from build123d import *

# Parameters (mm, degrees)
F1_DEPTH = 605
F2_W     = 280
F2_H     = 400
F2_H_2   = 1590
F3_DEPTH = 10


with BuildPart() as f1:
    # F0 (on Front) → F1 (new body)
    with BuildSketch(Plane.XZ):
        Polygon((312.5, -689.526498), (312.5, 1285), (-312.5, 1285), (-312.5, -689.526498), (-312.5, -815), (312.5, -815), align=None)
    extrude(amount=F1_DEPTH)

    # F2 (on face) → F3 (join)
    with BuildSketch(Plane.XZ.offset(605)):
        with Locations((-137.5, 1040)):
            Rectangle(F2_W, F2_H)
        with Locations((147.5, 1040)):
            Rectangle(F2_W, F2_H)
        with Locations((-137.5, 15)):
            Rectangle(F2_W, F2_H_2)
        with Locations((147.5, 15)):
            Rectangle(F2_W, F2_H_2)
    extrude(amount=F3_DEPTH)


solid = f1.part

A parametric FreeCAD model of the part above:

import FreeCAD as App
import Part
import Sketcher

V = App.Vector

doc = App.newDocument("Part")
params = doc.addObject("Spreadsheet::Sheet", "Params")
for row, (alias, value) in enumerate([
    ("sketch1_width", "625 mm"),
    ("sketch1_height", "2100 mm"),
    ("pad1_length", "605 mm"),
    ("sketch2_width", "280 mm"),
    ("sketch2_height", "400 mm"),
    ("sketch2_height2", "1590 mm"),
    ("pad2_length", "10 mm"),
], start=1):
    params.set(f"A{row}", alias)
    params.set(f"B{row}", "=" + value)
    params.setAlias(f"B{row}", alias)

body = doc.addObject("PartDesign::Body", "Body")

# Sketch on XZ plane
sketch1 = body.newObject("Sketcher::SketchObject", "Sketch")
sketch1.AttachmentSupport = (doc.getObject("XZ_Plane"), [""])
sketch1.MapMode = "FlatFace"
sketch1.addGeometry(Part.LineSegment(V(312, 1285, 0), V(-312, 1285, 0)), False)
sketch1.addGeometry(Part.LineSegment(V(-312, 1285, 0), V(-312, -815, 0)), False)
sketch1.addGeometry(Part.LineSegment(V(-312, -815, 0), V(312, -815, 0)), False)
sketch1.addGeometry(Part.LineSegment(V(312, -815, 0), V(312, 1285, 0)), False)
sketch1.addConstraint(Sketcher.Constraint("Coincident", 0, 2, 1, 1))
sketch1.addConstraint(Sketcher.Constraint("Coincident", 1, 2, 2, 1))
sketch1.addConstraint(Sketcher.Constraint("Coincident", 2, 2, 3, 1))
sketch1.addConstraint(Sketcher.Constraint("Coincident", 3, 2, 0, 1))
sketch1.addConstraint(Sketcher.Constraint("Horizontal", 0))
sketch1.addConstraint(Sketcher.Constraint("Vertical", 1))
sketch1.addConstraint(Sketcher.Constraint("Horizontal", 2))
sketch1.addConstraint(Sketcher.Constraint("Vertical", 3))
sketch1.addConstraint(Sketcher.Constraint("DistanceX", 0, 2, 0, 1, 625.0))
sketch1.addConstraint(Sketcher.Constraint("DistanceY", 1, 2, 1, 1, 2100.0))
sketch1.addConstraint(Sketcher.Constraint("DistanceY", -1, 1, 0, 2, 1285.0))
sketch1.addConstraint(Sketcher.Constraint("DistanceX", 0, 2, -1, 1, 312.5))
sketch1.setExpression("Constraints[8]", "Params.sketch1_width")
sketch1.setExpression("Constraints[9]", "Params.sketch1_height")
pad1 = body.newObject("PartDesign::Pad", "Pad")
pad1.Profile = sketch1
pad1.setExpression("Length", "Params.pad1_length")

# Sketch on XZ plane
sketch2 = body.newObject("Sketcher::SketchObject", "Sketch001")
sketch2.AttachmentSupport = (doc.getObject("XZ_Plane"), [""])
sketch2.MapMode = "FlatFace"
sketch2.AttachmentOffset = App.Placement(V(0, 0, 605), App.Rotation())
sketch2.addGeometry(Part.LineSegment(V(-278, 1240, 0), V(-278, 840, 0)), False)
sketch2.addGeometry(Part.LineSegment(V(-278, 840, 0), V(2, 840, 0)), False)
sketch2.addGeometry(Part.LineSegment(V(2, 840, 0), V(2, 1240, 0)), False)
sketch2.addGeometry(Part.LineSegment(V(2, 1240, 0), V(-278, 1240, 0)), False)
sketch2.addGeometry(Part.LineSegment(V(8, 1240, 0), V(8, 840, 0)), False)
sketch2.addGeometry(Part.LineSegment(V(8, 840, 0), V(288, 840, 0)), False)
sketch2.addGeometry(Part.LineSegment(V(288, 840, 0), V(288, 1240, 0)), False)
sketch2.addGeometry(Part.LineSegment(V(288, 1240, 0), V(8, 1240, 0)), False)
sketch2.addGeometry(Part.LineSegment(V(-278, 810, 0), V(-278, -780, 0)), False)
sketch2.addGeometry(Part.LineSegment(V(-278, -780, 0), V(2, -780, 0)), False)
sketch2.addGeometry(Part.LineSegment(V(2, -780, 0), V(2, 810, 0)), False)
sketch2.addGeometry(Part.LineSegment(V(2, 810, 0), V(-278, 810, 0)), False)
sketch2.addGeometry(Part.LineSegment(V(8, 810, 0), V(8, -780, 0)), False)
sketch2.addGeometry(Part.LineSegment(V(8, -780, 0), V(288, -780, 0)), False)
sketch2.addGeometry(Part.LineSegment(V(288, -780, 0), V(288, 810, 0)), False)
sketch2.addGeometry(Part.LineSegment(V(288, 810, 0), V(8, 810, 0)), False)
sketch2.addConstraint(Sketcher.Constraint("Coincident", 0, 2, 1, 1))
sketch2.addConstraint(Sketcher.Constraint("Coincident", 1, 2, 2, 1))
sketch2.addConstraint(Sketcher.Constraint("Coincident", 2, 2, 3, 1))
sketch2.addConstraint(Sketcher.Constraint("Coincident", 3, 2, 0, 1))
sketch2.addConstraint(Sketcher.Constraint("Coincident", 4, 2, 5, 1))
sketch2.addConstraint(Sketcher.Constraint("Coincident", 5, 2, 6, 1))
sketch2.addConstraint(Sketcher.Constraint("Coincident", 6, 2, 7, 1))
sketch2.addConstraint(Sketcher.Constraint("Coincident", 7, 2, 4, 1))
sketch2.addConstraint(Sketcher.Constraint("Coincident", 8, 2, 9, 1))
sketch2.addConstraint(Sketcher.Constraint("Coincident", 9, 2, 10, 1))
sketch2.addConstraint(Sketcher.Constraint("Coincident", 10, 2, 11, 1))
sketch2.addConstraint(Sketcher.Constraint("Coincident", 11, 2, 8, 1))
sketch2.addConstraint(Sketcher.Constraint("Coincident", 12, 2, 13, 1))
sketch2.addConstraint(Sketcher.Constraint("Coincident", 13, 2, 14, 1))
sketch2.addConstraint(Sketcher.Constraint("Coincident", 14, 2, 15, 1))
sketch2.addConstraint(Sketcher.Constraint("Coincident", 15, 2, 12, 1))
sketch2.addConstraint(Sketcher.Constraint("Vertical", 0))
sketch2.addConstraint(Sketcher.Constraint("Horizontal", 1))
sketch2.addConstraint(Sketcher.Constraint("Vertical", 2))
sketch2.addConstraint(Sketcher.Constraint("Horizontal", 3))
sketch2.addConstraint(Sketcher.Constraint("Vertical", 4))
sketch2.addConstraint(Sketcher.Constraint("Horizontal", 5))
sketch2.addConstraint(Sketcher.Constraint("Vertical", 6))
sketch2.addConstraint(Sketcher.Constraint("Horizontal", 7))
sketch2.addConstraint(Sketcher.Constraint("Vertical", 8))
sketch2.addConstraint(Sketcher.Constraint("Horizontal", 9))
sketch2.addConstraint(Sketcher.Constraint("Vertical", 10))
sketch2.addConstraint(Sketcher.Constraint("Horizontal", 11))
sketch2.addConstraint(Sketcher.Constraint("Vertical", 12))
sketch2.addConstraint(Sketcher.Constraint("Horizontal", 13))
sketch2.addConstraint(Sketcher.Constraint("Vertical", 14))
sketch2.addConstraint(Sketcher.Constraint("Horizontal", 15))
sketch2.addConstraint(Sketcher.Constraint("Horizontal", 1, 2, 4, 2))
sketch2.addConstraint(Sketcher.Constraint("Horizontal", 3, 2, 6, 2))
sketch2.addConstraint(Sketcher.Constraint("Horizontal", 9, 2, 12, 2))
sketch2.addConstraint(Sketcher.Constraint("Horizontal", 11, 2, 14, 2))
sketch2.addConstraint(Sketcher.Constraint("Vertical", 3, 2, 8, 2))
sketch2.addConstraint(Sketcher.Constraint("Vertical", 2, 2, 9, 2))
sketch2.addConstraint(Sketcher.Constraint("Vertical", 7, 2, 12, 2))
sketch2.addConstraint(Sketcher.Constraint("Vertical", 6, 2, 13, 2))
sketch2.addConstraint(Sketcher.Constraint("Equal", 3, 5))
sketch2.addConstraint(Sketcher.Constraint("DistanceX", 1, 1, 1, 2, 280.0))
sketch2.addConstraint(Sketcher.Constraint("DistanceY", 0, 2, 0, 1, 400.0))
sketch2.addConstraint(Sketcher.Constraint("DistanceY", 8, 2, 8, 1, 1590.0))
sketch2.addConstraint(Sketcher.Constraint("DistanceY", -1, 1, 0, 2, 840.0))
sketch2.addConstraint(Sketcher.Constraint("DistanceY", 8, 2, -1, 1, 780.0))
sketch2.addConstraint(Sketcher.Constraint("DistanceX", 1, 2, 4, 2, 5.0))
sketch2.addConstraint(Sketcher.Constraint("DistanceX", 0, 2, -1, 1, 277.5))
sketch2.setExpression("Constraints[41]", "Params.sketch2_width")
sketch2.setExpression("Constraints[42]", "Params.sketch2_height")
sketch2.setExpression("Constraints[43]", "Params.sketch2_height2")
pad2 = body.newObject("PartDesign::Pad", "Pad001")
pad2.Profile = sketch2
pad2.setExpression("Length", "Params.pad2_length")

doc.recompute()
